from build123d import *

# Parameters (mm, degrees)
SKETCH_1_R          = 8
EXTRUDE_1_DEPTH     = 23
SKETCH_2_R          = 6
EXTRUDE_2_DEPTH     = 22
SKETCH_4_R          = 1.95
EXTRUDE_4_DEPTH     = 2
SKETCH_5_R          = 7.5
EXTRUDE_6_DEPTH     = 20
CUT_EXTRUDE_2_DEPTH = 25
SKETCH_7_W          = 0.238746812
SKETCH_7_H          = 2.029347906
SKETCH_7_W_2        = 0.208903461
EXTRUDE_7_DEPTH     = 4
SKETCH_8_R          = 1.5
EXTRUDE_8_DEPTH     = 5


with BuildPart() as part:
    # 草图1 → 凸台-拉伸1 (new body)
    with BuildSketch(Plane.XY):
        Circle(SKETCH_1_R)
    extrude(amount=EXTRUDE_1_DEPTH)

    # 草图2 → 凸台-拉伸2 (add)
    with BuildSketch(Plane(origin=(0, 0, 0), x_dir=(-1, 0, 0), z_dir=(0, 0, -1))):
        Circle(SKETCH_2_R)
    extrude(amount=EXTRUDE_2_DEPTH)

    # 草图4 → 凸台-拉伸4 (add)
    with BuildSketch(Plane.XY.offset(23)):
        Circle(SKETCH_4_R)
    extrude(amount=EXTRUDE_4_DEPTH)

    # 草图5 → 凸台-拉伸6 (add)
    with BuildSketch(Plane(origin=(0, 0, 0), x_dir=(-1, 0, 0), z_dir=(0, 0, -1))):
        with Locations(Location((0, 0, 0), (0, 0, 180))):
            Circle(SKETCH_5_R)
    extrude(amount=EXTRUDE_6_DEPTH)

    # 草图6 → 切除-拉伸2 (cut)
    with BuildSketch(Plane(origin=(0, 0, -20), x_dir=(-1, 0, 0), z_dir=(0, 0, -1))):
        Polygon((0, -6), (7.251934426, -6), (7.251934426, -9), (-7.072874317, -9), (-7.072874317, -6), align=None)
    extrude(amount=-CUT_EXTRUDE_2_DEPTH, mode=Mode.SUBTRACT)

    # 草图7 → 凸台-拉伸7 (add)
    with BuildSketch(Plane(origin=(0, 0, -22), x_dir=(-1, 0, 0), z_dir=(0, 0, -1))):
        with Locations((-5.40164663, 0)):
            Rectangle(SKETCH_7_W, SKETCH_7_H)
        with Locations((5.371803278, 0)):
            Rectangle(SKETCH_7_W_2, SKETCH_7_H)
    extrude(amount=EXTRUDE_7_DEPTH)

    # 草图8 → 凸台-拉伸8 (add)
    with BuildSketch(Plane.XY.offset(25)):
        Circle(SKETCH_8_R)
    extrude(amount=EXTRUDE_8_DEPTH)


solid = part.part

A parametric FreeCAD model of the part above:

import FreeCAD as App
import Part
import Sketcher

V = App.Vector

doc = App.newDocument("Part")
body = doc.addObject("PartDesign::Body", "Body")

# Sketch on XY plane
sketch1 = body.newObject("Sketcher::SketchObject", "Sketch")
sketch1.AttachmentSupport = (doc.getObject("XY_Plane"), [""])
sketch1.MapMode = "FlatFace"
sketch1.addGeometry(Part.Circle(V(0, 0, 0), V(0, 0, 1), 8), False)
sketch1.addConstraint(Sketcher.Constraint("Coincident", 0, 3, -1, 1))
sketch1.addConstraint(Sketcher.Constraint("Diameter", 0, 16.0))
pad1 = body.newObject("PartDesign::Pad", "Pad")
pad1.Profile = sketch1
pad1.Length = 23

# Sketch on XY plane
sketch2 = body.newObject("Sketcher::SketchObject", "Sketch001")
sketch2.AttachmentSupport = (doc.getObject("XY_Plane"), [""])
sketch2.MapMode = "FlatFace"
sketch2.addGeometry(Part.Circle(V(0, 0, 0), V(0, 0, 1), 6), False)
sketch2.addConstraint(Sketcher.Constraint("Coincident", 0, 3, -1, 1))
sketch2.addConstraint(Sketcher.Constraint("Diameter", 0, 12.0))
pad2 = body.newObject("PartDesign::Pad", "Pad001")
pad2.Profile = sketch2
pad2.Length = 22
pad2.Reversed = True

# Sketch on XY plane
sketch3 = body.newObject("Sketcher::SketchObject", "Sketch002")
sketch3.AttachmentSupport = (doc.getObject("XY_Plane"), [""])
sketch3.MapMode = "FlatFace"
sketch3.AttachmentOffset = App.Placement(V(0, 0, 23), App.Rotation())
sketch3.addGeometry(Part.Circle(V(0, 0, 0), V(0, 0, 1), 1.95), False)
sketch3.addConstraint(Sketcher.Constraint("Coincident", 0, 3, -1, 1))
sketch3.addConstraint(Sketcher.Constraint("Diameter", 0, 3.9))
pad3 = body.newObject("PartDesign::Pad", "Pad002")
pad3.Profile = sketch3
pad3.Length = 2

# Sketch on XY plane
sketch4 = body.newObject("Sketcher::SketchObject", "Sketch003")
sketch4.AttachmentSupport = (doc.getObject("XY_Plane"), [""])
sketch4.MapMode = "FlatFace"
sketch4.addGeometry(Part.Circle(V(0, 0, 0), V(0, 0, 1), 7.5), False)
sketch4.addConstraint(Sketcher.Constraint("Coincident", 0, 3, -1, 1))
sketch4.addConstraint(Sketcher.Constraint("Diameter", 0, 15.0))
pad4 = body.newObject("PartDesign::Pad", "Pad003")
pad4.Profile = sketch4
pad4.Length = 20
pad4.Reversed = True

# Sketch on XY plane
sketch5 = body.newObject("Sketcher::SketchObject", "Sketch004")
sketch5.AttachmentSupport = (doc.getObject("XY_Plane"), [""])
sketch5.MapMode = "FlatFace"
sketch5.AttachmentOffset = App.Placement(V(0, 0, -20), App.Rotation())
sketch5.addGeometry(Part.LineSegment(V(-7.251934, -6, 0), V(7.072874, -6, 0)), False)
sketch5.addGeometry(Part.LineSegment(V(7.072874, -6, 0), V(7.072874, -9, 0)), False)
sketch5.addGeometry(Part.LineSegment(V(7.072874, -9, 0), V(-7.251934, -9, 0)), False)
sketch5.addGeometry(Part.LineSegment(V(-7.251934, -9, 0), V(-7.251934, -6, 0)), False)
sketch5.addConstraint(Sketcher.Constraint("Coincident", 0, 2, 1, 1))
sketch5.addConstraint(Sketcher.Constraint("Coincident", 1, 2, 2, 1))
sketch5.addConstraint(Sketcher.Constraint("Coincident", 2, 2, 3, 1))
sketch5.addConstraint(Sketcher.Constraint("Coincident", 3, 2, 0, 1))
sketch5.addConstraint(Sketcher.Constraint("Horizontal", 0))
sketch5.addConstraint(Sketcher.Constraint("Vertical", 1))
sketch5.addConstraint(Sketcher.Constraint("Horizontal", 2))
sketch5.addConstraint(Sketcher.Constraint("Vertical", 3))
sketch5.addConstraint(Sketcher.Constraint("DistanceY", 1, 2, 1, 1, 3.0))
sketch5.addConstraint(Sketcher.Constraint("DistanceY", 0, 2, -1, 1, 6.0))
sketch5.addConstraint(Sketcher.Constraint("DistanceX", 0, 1, 0, 2, 14.324809))
sketch5.addConstraint(Sketcher.Constraint("DistanceX", -1, 1, 0, 2, 7.072874))
pocket1 = body.newObject("PartDesign::Pocket", "Pocket")
pocket1.Profile = sketch5
pocket1.Length = 25
pocket1.Reversed = True

# Sketch on XY plane
sketch6 = body.newObject("Sketcher::SketchObject", "Sketch005")
sketch6.AttachmentSupport = (doc.getObject("XY_Plane"), [""])
sketch6.MapMode = "FlatFace"
sketch6.AttachmentOffset = App.Placement(V(0, 0, -22), App.Rotation())
sketch6.addGeometry(Part.LineSegment(V(5.52102, 1.014674, 0), V(5.52102, -1.014674, 0)), False)
sketch6.addGeometry(Part.LineSegment(V(5.52102, -1.014674, 0), V(5.282273, -1.014674, 0)), False)
sketch6.addGeometry(Part.LineSegment(V(5.282273, -1.014674, 0), V(5.282273, 1.014674, 0)), False)
sketch6.addGeometry(Part.LineSegment(V(5.282273, 1.014674, 0), V(5.52102, 1.014674, 0)), False)
sketch6.addGeometry(Part.LineSegment(V(-5.267352, 1.014674, 0), V(-5.267352, -1.014674, 0)), False)
sketch6.addGeometry(Part.LineSegment(V(-5.267352, -1.014674, 0), V(-5.476255, -1.014674, 0)), False)
sketch6.addGeometry(Part.LineSegment(V(-5.476255, -1.014674, 0), V(-5.476255, 1.014674, 0)), False)
sketch6.addGeometry(Part.LineSegment(V(-5.476255, 1.014674, 0), V(-5.267352, 1.014674, 0)), False)
sketch6.addConstraint(Sketcher.Constraint("Coincident", 0, 2, 1, 1))
sketch6.addConstraint(Sketcher.Constraint("Coincident", 1, 2, 2, 1))
sketch6.addConstraint(Sketcher.Constraint("Coincident", 2, 2, 3, 1))
sketch6.addConstraint(Sketcher.Constraint("Coincident", 3, 2, 0, 1))
sketch6.addConstraint(Sketcher.Constraint("Coincident", 4, 2, 5, 1))
sketch6.addConstraint(Sketcher.Constraint("Coincident", 5, 2, 6, 1))
sketch6.addConstraint(Sketcher.Constraint("Coincident", 6, 2, 7, 1))
sketch6.addConstraint(Sketcher.Constraint("Coincident", 7, 2, 4, 1))
sketch6.addConstraint(Sketcher.Constraint("Vertical", 0))
sketch6.addConstraint(Sketcher.Constraint("Horizontal", 1))
sketch6.addConstraint(Sketcher.Constraint("Vertical", 2))
sketch6.addConstraint(Sketcher.Constraint("Horizontal", 3))
sketch6.addConstraint(Sketcher.Constraint("Vertical", 4))
sketch6.addConstraint(Sketcher.Constraint("Horizontal", 5))
sketch6.addConstraint(Sketcher.Constraint("Vertical", 6))
sketch6.addConstraint(Sketcher.Constraint("Horizontal", 7))
sketch6.addConstraint(Sketcher.Constraint("Horizontal", 1, 2, 4, 2))
sketch6.addConstraint(Sketcher.Constraint("Horizontal", 3, 2, 6, 2))
sketch6.addConstraint(Sketcher.Constraint("DistanceX", 1, 2, 1, 1, 0.238747))
sketch6.addConstraint(Sketcher.Constraint("DistanceX", 5, 2, 5, 1, 0.208903))
sketch6.addConstraint(Sketcher.Constraint("DistanceY", 0, 2, 0, 1, 2.029348))
sketch6.addConstraint(Sketcher.Constraint("DistanceX", -1, 1, 0, 2, 5.52102))
sketch6.addConstraint(Sketcher.Constraint("DistanceX", 4, 2, -1, 1, 5.267352))
sketch6.addConstraint(Sketcher.Constraint("DistanceY", 0, 2, -1, 1, 1.014674))
pad5 = body.newObject("PartDesign::Pad", "Pad004")
pad5.Profile = sketch6
pad5.Length = 4
pad5.Reversed = True

# Sketch on XY plane
sketch7 = body.newObject("Sketcher::SketchObject", "Sketch006")
sketch7.AttachmentSupport = (doc.getObject("XY_Plane"), [""])
sketch7.MapMode = "FlatFace"
sketch7.AttachmentOffset = App.Placement(V(0, 0, 25), App.Rotation())
sketch7.addGeometry(Part.Circle(V(0, 0, 0), V(0, 0, 1), 1.5), False)
sketch7.addConstraint(Sketcher.Constraint("Coincident", 0, 3, -1, 1))
sketch7.addConstraint(Sketcher.Constraint("Diameter", 0, 3.0))
pad6 = body.newObject("PartDesign::Pad", "Pad005")
pad6.Profile = sketch7
pad6.Length = 5

doc.recompute()
